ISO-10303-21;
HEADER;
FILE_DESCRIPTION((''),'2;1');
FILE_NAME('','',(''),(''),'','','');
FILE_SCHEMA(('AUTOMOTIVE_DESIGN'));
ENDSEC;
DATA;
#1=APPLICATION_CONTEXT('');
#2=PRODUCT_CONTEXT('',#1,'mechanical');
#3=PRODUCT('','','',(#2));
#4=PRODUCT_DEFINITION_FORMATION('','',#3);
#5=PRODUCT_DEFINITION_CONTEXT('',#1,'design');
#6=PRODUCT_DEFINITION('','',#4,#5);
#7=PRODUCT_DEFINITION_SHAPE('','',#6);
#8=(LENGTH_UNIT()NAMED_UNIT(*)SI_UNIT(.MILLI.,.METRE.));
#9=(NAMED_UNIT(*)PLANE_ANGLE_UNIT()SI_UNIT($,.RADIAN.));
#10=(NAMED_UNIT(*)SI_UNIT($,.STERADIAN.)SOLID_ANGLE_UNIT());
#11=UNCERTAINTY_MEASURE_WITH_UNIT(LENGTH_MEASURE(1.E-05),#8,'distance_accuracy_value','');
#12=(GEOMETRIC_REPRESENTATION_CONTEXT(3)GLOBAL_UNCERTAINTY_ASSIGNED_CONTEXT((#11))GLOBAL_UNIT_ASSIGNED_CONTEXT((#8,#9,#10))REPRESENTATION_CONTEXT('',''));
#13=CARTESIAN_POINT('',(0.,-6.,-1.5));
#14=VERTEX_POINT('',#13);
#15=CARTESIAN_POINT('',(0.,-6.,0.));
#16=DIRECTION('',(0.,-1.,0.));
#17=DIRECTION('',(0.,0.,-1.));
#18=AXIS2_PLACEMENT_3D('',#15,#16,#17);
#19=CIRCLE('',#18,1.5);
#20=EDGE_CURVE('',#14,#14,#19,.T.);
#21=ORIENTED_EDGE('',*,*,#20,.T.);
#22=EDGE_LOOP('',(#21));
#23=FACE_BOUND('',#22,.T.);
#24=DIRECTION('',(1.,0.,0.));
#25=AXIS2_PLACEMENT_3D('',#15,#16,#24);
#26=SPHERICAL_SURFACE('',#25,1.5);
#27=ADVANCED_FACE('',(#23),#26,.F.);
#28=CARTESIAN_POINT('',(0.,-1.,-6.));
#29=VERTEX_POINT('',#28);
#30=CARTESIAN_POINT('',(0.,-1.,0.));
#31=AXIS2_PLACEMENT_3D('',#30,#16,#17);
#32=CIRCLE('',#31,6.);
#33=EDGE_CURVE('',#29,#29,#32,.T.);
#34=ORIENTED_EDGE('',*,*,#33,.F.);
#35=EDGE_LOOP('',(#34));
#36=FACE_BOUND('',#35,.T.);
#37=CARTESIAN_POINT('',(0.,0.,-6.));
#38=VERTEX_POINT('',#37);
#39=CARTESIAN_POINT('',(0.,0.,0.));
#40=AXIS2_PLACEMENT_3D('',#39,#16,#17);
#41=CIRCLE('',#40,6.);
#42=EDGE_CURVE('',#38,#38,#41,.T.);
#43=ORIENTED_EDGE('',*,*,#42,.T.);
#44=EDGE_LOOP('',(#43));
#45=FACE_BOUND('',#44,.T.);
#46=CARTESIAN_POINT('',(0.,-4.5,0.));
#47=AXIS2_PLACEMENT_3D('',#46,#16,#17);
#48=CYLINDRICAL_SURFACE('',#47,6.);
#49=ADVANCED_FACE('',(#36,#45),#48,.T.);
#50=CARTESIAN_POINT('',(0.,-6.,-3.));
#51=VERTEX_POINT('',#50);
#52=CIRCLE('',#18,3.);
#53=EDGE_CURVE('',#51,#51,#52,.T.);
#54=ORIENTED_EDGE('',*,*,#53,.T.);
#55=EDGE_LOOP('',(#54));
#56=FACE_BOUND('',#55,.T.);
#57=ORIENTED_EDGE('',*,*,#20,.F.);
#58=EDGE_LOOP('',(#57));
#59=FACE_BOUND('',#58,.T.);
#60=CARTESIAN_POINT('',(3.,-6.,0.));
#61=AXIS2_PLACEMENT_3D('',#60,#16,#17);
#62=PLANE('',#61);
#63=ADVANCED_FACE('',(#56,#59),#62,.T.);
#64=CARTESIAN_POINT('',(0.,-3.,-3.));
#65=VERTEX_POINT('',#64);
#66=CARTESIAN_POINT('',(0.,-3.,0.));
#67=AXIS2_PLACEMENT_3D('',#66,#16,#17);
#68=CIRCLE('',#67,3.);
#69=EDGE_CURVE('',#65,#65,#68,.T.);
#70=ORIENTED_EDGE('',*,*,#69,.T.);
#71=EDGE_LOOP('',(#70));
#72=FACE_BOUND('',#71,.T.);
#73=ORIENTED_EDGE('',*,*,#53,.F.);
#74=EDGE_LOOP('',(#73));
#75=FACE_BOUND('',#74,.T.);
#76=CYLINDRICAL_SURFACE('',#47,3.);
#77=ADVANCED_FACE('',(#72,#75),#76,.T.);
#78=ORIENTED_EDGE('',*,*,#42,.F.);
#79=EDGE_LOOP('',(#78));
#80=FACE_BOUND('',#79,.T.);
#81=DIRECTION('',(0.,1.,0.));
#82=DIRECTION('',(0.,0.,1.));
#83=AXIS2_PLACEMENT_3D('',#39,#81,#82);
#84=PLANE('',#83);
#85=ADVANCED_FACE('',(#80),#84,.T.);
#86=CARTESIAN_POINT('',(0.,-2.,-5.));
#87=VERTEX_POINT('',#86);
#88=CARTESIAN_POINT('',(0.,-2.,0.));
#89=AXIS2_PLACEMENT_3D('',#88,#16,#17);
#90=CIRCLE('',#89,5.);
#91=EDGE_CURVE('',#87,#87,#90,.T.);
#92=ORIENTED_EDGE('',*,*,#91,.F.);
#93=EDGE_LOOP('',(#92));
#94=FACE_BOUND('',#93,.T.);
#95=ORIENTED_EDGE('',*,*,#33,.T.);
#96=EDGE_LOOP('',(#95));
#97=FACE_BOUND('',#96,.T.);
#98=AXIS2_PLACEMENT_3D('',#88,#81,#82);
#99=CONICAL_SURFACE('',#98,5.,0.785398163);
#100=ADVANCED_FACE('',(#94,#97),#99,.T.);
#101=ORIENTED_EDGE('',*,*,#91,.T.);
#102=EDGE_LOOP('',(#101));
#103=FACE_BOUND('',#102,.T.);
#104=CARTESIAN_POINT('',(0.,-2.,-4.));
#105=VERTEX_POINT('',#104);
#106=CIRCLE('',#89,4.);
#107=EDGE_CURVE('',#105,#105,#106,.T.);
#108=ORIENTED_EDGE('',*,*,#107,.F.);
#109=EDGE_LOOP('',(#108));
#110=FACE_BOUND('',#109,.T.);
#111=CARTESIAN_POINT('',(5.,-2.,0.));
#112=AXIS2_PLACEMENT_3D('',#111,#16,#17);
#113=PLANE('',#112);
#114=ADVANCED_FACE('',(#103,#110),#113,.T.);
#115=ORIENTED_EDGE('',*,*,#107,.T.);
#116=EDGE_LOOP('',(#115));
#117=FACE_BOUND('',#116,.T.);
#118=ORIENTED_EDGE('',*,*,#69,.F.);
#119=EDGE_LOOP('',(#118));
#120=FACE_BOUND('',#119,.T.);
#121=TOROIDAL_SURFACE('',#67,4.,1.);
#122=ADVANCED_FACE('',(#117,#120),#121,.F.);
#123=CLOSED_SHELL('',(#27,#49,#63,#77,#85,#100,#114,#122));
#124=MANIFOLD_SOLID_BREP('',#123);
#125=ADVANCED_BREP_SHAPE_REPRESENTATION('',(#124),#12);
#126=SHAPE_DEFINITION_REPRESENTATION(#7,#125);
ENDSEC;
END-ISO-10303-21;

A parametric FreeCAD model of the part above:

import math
import FreeCAD as App
import Part
import Sketcher

V = App.Vector
Q = App.Units.Quantity

doc = App.newDocument("Part")
params = doc.addObject("Spreadsheet::Sheet", "Params")
for row, (alias, value) in enumerate([
    ("sketch1_radius", "1 mm"),
    ("sketch1_radius2", "1.5 mm"),
    ("sketch1_width", "6 mm"),
    ("sketch1_width2", "1 mm"),
    ("sketch1_height", "3 mm"),
    ("revolution_angle", "360 deg"),
], start=1):
    params.set(f"A{row}", alias)
    params.set(f"B{row}", "=" + value)
    params.setAlias(f"B{row}", alias)

body = doc.addObject("PartDesign::Body", "Body")

sketch1 = body.newObject("Sketcher::SketchObject", "Sketch")
sketch1.AttachmentSupport = (doc.getObject("XY_Plane"), [""])
sketch1.MapMode = "FlatFace"
sketch1.addGeometry([
    Part.LineSegment(V(6, 0, 0), V(0, 0, 0)),
    Part.LineSegment(V(0, 0, 0), V(0, -4.5, 0)),
    Part.ArcOfCircle(Part.Circle(V(0, -6, 0), V(0, 0, 1), 1.5), math.radians(0), math.radians(90)),
    Part.LineSegment(V(1.5, -6, 0), V(3, -6, 0)),
    Part.LineSegment(V(3, -6, 0), V(3, -3, 0)),
    Part.ArcOfCircle(Part.Circle(V(4, -3, 0), V(0, 0, 1), 1), math.radians(90), math.radians(180)),
    Part.LineSegment(V(4, -2, 0), V(5, -2, 0)),
    Part.LineSegment(V(5, -2, 0), V(6, -1, 0)),
    Part.LineSegment(V(6, -1, 0), V(6, 0, 0)),
], False)
sketch1.addConstraint([
    Sketcher.Constraint("Coincident", 0, 2, 1, 1),
    Sketcher.Constraint("Coincident", 1, 2, 2, 2),
    Sketcher.Constraint("Coincident", 2, 1, 3, 1),
    Sketcher.Constraint("Coincident", 3, 2, 4, 1),
    Sketcher.Constraint("Tangent", 4, 2, 5, 2),
    Sketcher.Constraint("Tangent", 5, 1, 6, 1),
    Sketcher.Constraint("Coincident", 6, 2, 7, 1),
    Sketcher.Constraint("Coincident", 7, 2, 8, 1),
    Sketcher.Constraint("Coincident", 8, 2, 0, 1),
    Sketcher.Constraint("Horizontal", 0),
    Sketcher.Constraint("Vertical", 1),
    Sketcher.Constraint("Horizontal", 3),
    Sketcher.Constraint("Vertical", 4),
    Sketcher.Constraint("Horizontal", 6),
    Sketcher.Constraint("Vertical", 8),
    Sketcher.Constraint("Coincident", 0, 2, -1, 1),
    Sketcher.Constraint("PointOnObject", 2, 3, -2),
    Sketcher.Constraint("Equal", 6, 8),
    Sketcher.Constraint("Radius", 5, 1.0),
    Sketcher.Constraint("Radius", 2, 1.5),
    Sketcher.Constraint("DistanceX", 0, 2, 0, 1, 6.0),
    Sketcher.Constraint("DistanceX", 6, 1, 6, 2, 1.0),
    Sketcher.Constraint("DistanceY", 4, 1, 4, 2, 3.0),
    Sketcher.Constraint("Angle", 7, Q("45 deg")),
    Sketcher.Constraint("DistanceX", 3, 1, 3, 2, 1.5),
    Sketcher.Constraint("DistanceY", 1, 2, 1, 1, 4.5),
])
sketch1.setExpression("Constraints[18]", "Params.sketch1_radius")
sketch1.setExpression("Constraints[19]", "Params.sketch1_radius2")
sketch1.setExpression("Constraints[20]", "Params.sketch1_width")
sketch1.setExpression("Constraints[21]", "Params.sketch1_width2")
sketch1.setExpression("Constraints[22]", "Params.sketch1_height")
revolution = body.newObject("PartDesign::Revolution", "Revolution")
revolution.Profile = sketch1
revolution.ReferenceAxis = (sketch1, ["V_Axis"])
revolution.setExpression("Angle", "Params.revolution_angle")

doc.recompute()
